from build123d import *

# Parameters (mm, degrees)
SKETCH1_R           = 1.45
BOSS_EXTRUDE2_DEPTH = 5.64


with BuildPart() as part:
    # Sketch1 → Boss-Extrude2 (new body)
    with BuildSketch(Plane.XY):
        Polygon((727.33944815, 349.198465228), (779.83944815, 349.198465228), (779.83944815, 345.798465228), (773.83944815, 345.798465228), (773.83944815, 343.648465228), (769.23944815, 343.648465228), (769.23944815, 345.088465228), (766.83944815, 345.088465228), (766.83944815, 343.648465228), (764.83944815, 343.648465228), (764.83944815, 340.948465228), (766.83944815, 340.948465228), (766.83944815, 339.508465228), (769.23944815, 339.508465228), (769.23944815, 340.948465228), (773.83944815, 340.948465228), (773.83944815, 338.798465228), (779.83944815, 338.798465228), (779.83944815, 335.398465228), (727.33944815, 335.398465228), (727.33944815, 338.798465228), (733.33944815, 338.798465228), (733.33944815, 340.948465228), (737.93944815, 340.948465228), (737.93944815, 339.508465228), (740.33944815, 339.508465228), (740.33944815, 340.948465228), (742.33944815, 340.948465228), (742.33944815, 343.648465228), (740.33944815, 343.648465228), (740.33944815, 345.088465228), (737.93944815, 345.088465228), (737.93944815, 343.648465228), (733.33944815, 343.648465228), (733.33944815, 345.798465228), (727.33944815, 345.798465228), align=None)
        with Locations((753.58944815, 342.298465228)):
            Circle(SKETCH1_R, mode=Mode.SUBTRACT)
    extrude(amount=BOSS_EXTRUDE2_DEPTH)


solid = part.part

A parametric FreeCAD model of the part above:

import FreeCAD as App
import Part
import Sketcher
Q = App.Units.Quantity

doc = App.newDocument("Part")
params = doc.addObject("Spreadsheet::Sheet", "Params")
for row, (alias, value) in enumerate([
    ("sketch1_diameter", "2.9 mm"),
    ("sketch1_width", "6 mm"),
    ("sketch1_width2", "2 mm"),
    ("sketch1_width3", "52.5 mm"),
    ("sketch1_width4", "4.6 mm"),
    ("pad1_length", "5.64 mm"),
], start=1):
    params.set(f"A{row}", alias)
    params.set(f"B{row}", "=" + value)
    params.setAlias(f"B{row}", alias)

body = doc.addObject("PartDesign::Body", "Body")

sketch1 = body.newObject("Sketcher::SketchObject", "Sketch")
sketch1.AttachmentSupport = (doc.getObject("XY_Plane"), [""])
sketch1.MapMode = "FlatFace"
sketch1.addGeometry(Part.LineSegment(App.Vector(779.8, 349.2, 0), App.Vector(727.3, 349.2, 0)), False)
sketch1.addGeometry(Part.LineSegment(App.Vector(727.3, 349.2, 0), App.Vector(727.3, 345.8, 0)), False)
sketch1.addGeometry(Part.LineSegment(App.Vector(727.3, 345.8, 0), App.Vector(733.3, 345.8, 0)), False)
sketch1.addGeometry(Part.LineSegment(App.Vector(733.3, 345.8, 0), App.Vector(733.3, 343.6, 0)), False)
sketch1.addGeometry(Part.LineSegment(App.Vector(733.3, 343.6, 0), App.Vector(737.9, 343.6, 0)), False)
sketch1.addGeometry(Part.LineSegment(App.Vector(737.9, 343.6, 0), App.Vector(737.9, 345.1, 0)), False)
sketch1.addGeometry(Part.LineSegment(App.Vector(737.9, 345.1, 0), App.Vector(740.3, 345.1, 0)), False)
sketch1.addGeometry(Part.LineSegment(App.Vector(740.3, 345.1, 0), App.Vector(740.3, 343.6, 0)), False)
sketch1.addGeometry(Part.LineSegment(App.Vector(740.3, 343.6, 0), App.Vector(742.3, 343.6, 0)), False)
sketch1.addGeometry(Part.LineSegment(App.Vector(742.3, 343.6, 0), App.Vector(742.3, 340.9, 0)), False)
sketch1.addGeometry(Part.LineSegment(App.Vector(742.3, 340.9, 0), App.Vector(740.3, 340.9, 0)), False)
sketch1.addGeometry(Part.LineSegment(App.Vector(740.3, 340.9, 0), App.Vector(740.3, 339.5, 0)), False)
sketch1.addGeometry(Part.LineSegment(App.Vector(740.3, 339.5, 0), App.Vector(737.9, 339.5, 0)), False)
sketch1.addGeometry(Part.LineSegment(App.Vector(737.9, 339.5, 0), App.Vector(737.9, 340.9, 0)), False)
sketch1.addGeometry(Part.LineSegment(App.Vector(737.9, 340.9, 0), App.Vector(733.3, 340.9, 0)), False)
sketch1.addGeometry(Part.LineSegment(App.Vector(733.3, 340.9, 0), App.Vector(733.3, 338.8, 0)), False)
sketch1.addGeometry(Part.LineSegment(App.Vector(733.3, 338.8, 0), App.Vector(727.3, 338.8, 0)), False)
sketch1.addGeometry(Part.LineSegment(App.Vector(727.3, 338.8, 0), App.Vector(727.3, 335.4, 0)), False)
sketch1.addGeometry(Part.LineSegment(App.Vector(727.3, 335.4, 0), App.Vector(779.8, 335.4, 0)), False)
sketch1.addGeometry(Part.LineSegment(App.Vector(779.8, 335.4, 0), App.Vector(779.8, 338.8, 0)), False)
sketch1.addGeometry(Part.LineSegment(App.Vector(779.8, 338.8, 0), App.Vector(773.8, 338.8, 0)), False)
sketch1.addGeometry(Part.LineSegment(App.Vector(773.8, 338.8, 0), App.Vector(773.8, 340.9, 0)), False)
sketch1.addGeometry(Part.LineSegment(App.Vector(773.8, 340.9, 0), App.Vector(769.2, 340.9, 0)), False)
sketch1.addGeometry(Part.LineSegment(App.Vector(769.2, 340.9, 0), App.Vector(769.2, 339.5, 0)), False)
sketch1.addGeometry(Part.LineSegment(App.Vector(769.2, 339.5, 0), App.Vector(766.8, 339.5, 0)), False)
sketch1.addGeometry(Part.LineSegment(App.Vector(766.8, 339.5, 0), App.Vector(766.8, 340.9, 0)), False)
sketch1.addGeometry(Part.LineSegment(App.Vector(766.8, 340.9, 0), App.Vector(764.8, 340.9, 0)), False)
sketch1.addGeometry(Part.LineSegment(App.Vector(764.8, 340.9, 0), App.Vector(764.8, 343.6, 0)), False)
sketch1.addGeometry(Part.LineSegment(App.Vector(764.8, 343.6, 0), App.Vector(766.8, 343.6, 0)), False)
sketch1.addGeometry(Part.LineSegment(App.Vector(766.8, 343.6, 0), App.Vector(766.8, 345.1, 0)), False)
sketch1.addGeometry(Part.LineSegment(App.Vector(766.8, 345.1, 0), App.Vector(769.2, 345.1, 0)), False)
sketch1.addGeometry(Part.LineSegment(App.Vector(769.2, 345.1, 0), App.Vector(769.2, 343.6, 0)), False)
sketch1.addGeometry(Part.LineSegment(App.Vector(769.2, 343.6, 0), App.Vector(773.8, 343.6, 0)), False)
sketch1.addGeometry(Part.LineSegment(App.Vector(773.8, 343.6, 0), App.Vector(773.8, 345.8, 0)), False)
sketch1.addGeometry(Part.LineSegment(App.Vector(773.8, 345.8, 0), App.Vector(779.8, 345.8, 0)), False)
sketch1.addGeometry(Part.LineSegment(App.Vector(779.8, 345.8, 0), App.Vector(779.8, 349.2, 0)), False)
sketch1.addGeometry(Part.Circle(App.Vector(753.6, 342.3, 0), App.Vector(0, 0, 1), 1.4), False)
sketch1.addConstraint(Sketcher.Constraint("Coincident", 0, 2, 1, 1))
sketch1.addConstraint(Sketcher.Constraint("Coincident", 1, 2, 2, 1))
sketch1.addConstraint(Sketcher.Constraint("Coincident", 2, 2, 3, 1))
sketch1.addConstraint(Sketcher.Constraint("Coincident", 3, 2, 4, 1))
sketch1.addConstraint(Sketcher.Constraint("Coincident", 4, 2, 5, 1))
sketch1.addConstraint(Sketcher.Constraint("Coincident", 5, 2, 6, 1))
sketch1.addConstraint(Sketcher.Constraint("Coincident", 6, 2, 7, 1))
sketch1.addConstraint(Sketcher.Constraint("Coincident", 7, 2, 8, 1))
sketch1.addConstraint(Sketcher.Constraint("Coincident", 8, 2, 9, 1))
sketch1.addConstraint(Sketcher.Constraint("Coincident", 9, 2, 10, 1))
sketch1.addConstraint(Sketcher.Constraint("Coincident", 10, 2, 11, 1))
sketch1.addConstraint(Sketcher.Constraint("Coincident", 11, 2, 12, 1))
sketch1.addConstraint(Sketcher.Constraint("Coincident", 12, 2, 13, 1))
sketch1.addConstraint(Sketcher.Constraint("Coincident", 13, 2, 14, 1))
sketch1.addConstraint(Sketcher.Constraint("Coincident", 14, 2, 15, 1))
sketch1.addConstraint(Sketcher.Constraint("Coincident", 15, 2, 16, 1))
sketch1.addConstraint(Sketcher.Constraint("Coincident", 16, 2, 17, 1))
sketch1.addConstraint(Sketcher.Constraint("Coincident", 17, 2, 18, 1))
sketch1.addConstraint(Sketcher.Constraint("Coincident", 18, 2, 19, 1))
sketch1.addConstraint(Sketcher.Constraint("Coincident", 19, 2, 20, 1))
sketch1.addConstraint(Sketcher.Constraint("Coincident", 20, 2, 21, 1))
sketch1.addConstraint(Sketcher.Constraint("Coincident", 21, 2, 22, 1))
sketch1.addConstraint(Sketcher.Constraint("Coincident", 22, 2, 23, 1))
sketch1.addConstraint(Sketcher.Constraint("Coincident", 23, 2, 24, 1))
sketch1.addConstraint(Sketcher.Constraint("Coincident", 24, 2, 25, 1))
sketch1.addConstraint(Sketcher.Constraint("Coincident", 25, 2, 26, 1))
sketch1.addConstraint(Sketcher.Constraint("Coincident", 26, 2, 27, 1))
sketch1.addConstraint(Sketcher.Constraint("Coincident", 27, 2, 28, 1))
sketch1.addConstraint(Sketcher.Constraint("Coincident", 28, 2, 29, 1))
sketch1.addConstraint(Sketcher.Constraint("Coincident", 29, 2, 30, 1))
sketch1.addConstraint(Sketcher.Constraint("Coincident", 30, 2, 31, 1))
sketch1.addConstraint(Sketcher.Constraint("Coincident", 31, 2, 32, 1))
sketch1.addConstraint(Sketcher.Constraint("Coincident", 32, 2, 33, 1))
sketch1.addConstraint(Sketcher.Constraint("Coincident", 33, 2, 34, 1))
sketch1.addConstraint(Sketcher.Constraint("Coincident", 34, 2, 35, 1))
sketch1.addConstraint(Sketcher.Constraint("Coincident", 35, 2, 0, 1))
sketch1.addConstraint(Sketcher.Constraint("Horizontal", 0))
sketch1.addConstraint(Sketcher.Constraint("Vertical", 1))
sketch1.addConstraint(Sketcher.Constraint("Horizontal", 2))
sketch1.addConstraint(Sketcher.Constraint("Vertical", 3))
sketch1.addConstraint(Sketcher.Constraint("Horizontal", 4))
sketch1.addConstraint(Sketcher.Constraint("Vertical", 5))
sketch1.addConstraint(Sketcher.Constraint("Horizontal", 6))
sketch1.addConstraint(Sketcher.Constraint("Vertical", 7))
sketch1.addConstraint(Sketcher.Constraint("Horizontal", 8))
sketch1.addConstraint(Sketcher.Constraint("Vertical", 9))
sketch1.addConstraint(Sketcher.Constraint("Horizontal", 10))
sketch1.addConstraint(Sketcher.Constraint("Vertical", 11))
sketch1.addConstraint(Sketcher.Constraint("Horizontal", 12))
sketch1.addConstraint(Sketcher.Constraint("Vertical", 13))
sketch1.addConstraint(Sketcher.Constraint("Horizontal", 14))
sketch1.addConstraint(Sketcher.Constraint("Vertical", 15))
sketch1.addConstraint(Sketcher.Constraint("Horizontal", 16))
sketch1.addConstraint(Sketcher.Constraint("Vertical", 17))
sketch1.addConstraint(Sketcher.Constraint("Horizontal", 18))
sketch1.addConstraint(Sketcher.Constraint("Vertical", 19))
sketch1.addConstraint(Sketcher.Constraint("Horizontal", 20))
sketch1.addConstraint(Sketcher.Constraint("Vertical", 21))
sketch1.addConstraint(Sketcher.Constraint("Horizontal", 22))
sketch1.addConstraint(Sketcher.Constraint("Vertical", 23))
sketch1.addConstraint(Sketcher.Constraint("Horizontal", 24))
sketch1.addConstraint(Sketcher.Constraint("Vertical", 25))
sketch1.addConstraint(Sketcher.Constraint("Horizontal", 26))
sketch1.addConstraint(Sketcher.Constraint("Vertical", 27))
sketch1.addConstraint(Sketcher.Constraint("Horizontal", 28))
sketch1.addConstraint(Sketcher.Constraint("Vertical", 29))
sketch1.addConstraint(Sketcher.Constraint("Horizontal", 30))
sketch1.addConstraint(Sketcher.Constraint("Vertical", 31))
sketch1.addConstraint(Sketcher.Constraint("Horizontal", 32))
sketch1.addConstraint(Sketcher.Constraint("Vertical", 33))
sketch1.addConstraint(Sketcher.Constraint("Horizontal", 34))
sketch1.addConstraint(Sketcher.Constraint("Vertical", 35))
sketch1.addConstraint(Sketcher.Constraint("Horizontal", 4, 2, 7, 2))
sketch1.addConstraint(Sketcher.Constraint("Horizontal", 10, 2, 13, 2))
sketch1.addConstraint(Sketcher.Constraint("Horizontal", 16, 2, 19, 2))
sketch1.addConstraint(Sketcher.Constraint("Horizontal", 14, 2, 21, 2))
sketch1.addConstraint(Sketcher.Constraint("Horizontal", 12, 2, 23, 2))
sketch1.addConstraint(Sketcher.Constraint("Horizontal", 22, 2, 25, 2))
sketch1.addConstraint(Sketcher.Constraint("Horizontal", 8, 2, 27, 2))
sketch1.addConstraint(Sketcher.Constraint("Horizontal", 6, 2, 29, 2))
sketch1.addConstraint(Sketcher.Constraint("Horizontal", 28, 2, 31, 2))
sketch1.addConstraint(Sketcher.Constraint("Horizontal", 2, 2, 33, 2))
sketch1.addConstraint(Sketcher.Constraint("Vertical", 7, 2, 10, 2))
sketch1.addConstraint(Sketcher.Constraint("Vertical", 5, 2, 12, 2))
sketch1.addConstraint(Sketcher.Constraint("Vertical", 3, 2, 14, 2))
sketch1.addConstraint(Sketcher.Constraint("Vertical", 1, 2, 16, 2))
sketch1.addConstraint(Sketcher.Constraint("Vertical", 25, 2, 28, 2))
sketch1.addConstraint(Sketcher.Constraint("Vertical", 23, 2, 30, 2))
sketch1.addConstraint(Sketcher.Constraint("Vertical", 21, 2, 32, 2))
sketch1.addConstraint(Sketcher.Constraint("Vertical", 19, 2, 34, 2))
sketch1.addConstraint(Sketcher.Constraint("Equal", 16, 20))
sketch1.addConstraint(Sketcher.Constraint("Equal", 14, 22))
sketch1.addConstraint(Sketcher.Constraint("Equal", 12, 24))
sketch1.addConstraint(Sketcher.Constraint("Equal", 10, 26))
sketch1.addConstraint(Sketcher.Constraint("Equal", 7, 11))
sketch1.addConstraint(Sketcher.Constraint("Equal", 3, 15))
sketch1.addConstraint(Sketcher.Constraint("Equal", 1, 17))
sketch1.addConstraint(Sketcher.Constraint("Diameter", 36, Q("2.9 mm")))
sketch1.addConstraint(Sketcher.Constraint("DistanceX", 2, 1, 2, 2, Q("6 mm")))
sketch1.addConstraint(Sketcher.Constraint("DistanceX", 8, 1, 8, 2, Q("2 mm")))
sketch1.addConstraint(Sketcher.Constraint("DistanceX", 0, 2, 0, 1, Q("52.5 mm")))
sketch1.addConstraint(Sketcher.Constraint("DistanceX", 4, 1, 4, 2, Q("4.6 mm")))
sketch1.addConstraint(Sketcher.Constraint("DistanceX", 6, 1, 6, 2, Q("2.4 mm")))
sketch1.addConstraint(Sketcher.Constraint("DistanceY", 1, 2, 1, 1, Q("3.4 mm")))
sketch1.addConstraint(Sketcher.Constraint("DistanceY", 9, 2, 9, 1, Q("2.7 mm")))
sketch1.addConstraint(Sketcher.Constraint("DistanceY", 16, 2, 1, 2, Q("7 mm")))
sketch1.addConstraint(Sketcher.Constraint("DistanceY", 5, 1, 5, 2, Q("1.44 mm")))
sketch1.addConstraint(Sketcher.Constraint("DistanceY", 36, 3, 0, 2, Q("6.9 mm")))
sketch1.addConstraint(Sketcher.Constraint("DistanceX", 0, 2, 36, 3, Q("26.25 mm")))
sketch1.addConstraint(Sketcher.Constraint("DistanceX", -1, 1, 36, 3, Q("753.589448 mm")))
sketch1.addConstraint(Sketcher.Constraint("DistanceY", -1, 1, 36, 3, Q("342.298465 mm")))
sketch1.setExpression("Constraints[97]", "Params.sketch1_diameter")
sketch1.setExpression("Constraints[98]", "Params.sketch1_width")
sketch1.setExpression("Constraints[99]", "Params.sketch1_width2")
sketch1.setExpression("Constraints[100]", "Params.sketch1_width3")
sketch1.setExpression("Constraints[101]", "Params.sketch1_width4")
pad1 = body.newObject("PartDesign::Pad", "Pad")
pad1.Profile = sketch1
pad1.setExpression("Length", "Params.pad1_length")

doc.recompute()
